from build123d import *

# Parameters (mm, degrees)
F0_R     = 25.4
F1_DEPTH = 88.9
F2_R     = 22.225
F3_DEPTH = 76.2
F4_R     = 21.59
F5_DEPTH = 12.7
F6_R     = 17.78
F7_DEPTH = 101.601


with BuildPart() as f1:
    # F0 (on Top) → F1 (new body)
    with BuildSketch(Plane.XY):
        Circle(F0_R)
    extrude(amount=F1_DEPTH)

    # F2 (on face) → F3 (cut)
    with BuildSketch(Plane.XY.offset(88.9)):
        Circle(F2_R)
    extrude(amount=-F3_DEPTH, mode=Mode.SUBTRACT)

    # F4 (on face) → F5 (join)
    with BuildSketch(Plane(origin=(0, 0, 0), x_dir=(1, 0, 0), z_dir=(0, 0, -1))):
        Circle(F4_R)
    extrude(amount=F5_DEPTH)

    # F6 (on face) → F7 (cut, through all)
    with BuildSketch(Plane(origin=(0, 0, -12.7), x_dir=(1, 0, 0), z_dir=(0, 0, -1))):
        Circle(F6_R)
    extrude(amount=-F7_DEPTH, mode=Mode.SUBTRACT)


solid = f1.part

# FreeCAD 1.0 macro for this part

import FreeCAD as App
import Part
import Sketcher

V = App.Vector
Q = App.Units.Quantity

doc = App.newDocument("Part")
body = doc.addObject("PartDesign::Body", "Body")

sketch1 = body.newObject("Sketcher::SketchObject", "Sketch")
sketch1.AttachmentSupport = (doc.getObject("XY_Plane"), [""])
sketch1.MapMode = "FlatFace"
sketch1.addGeometry(Part.Circle(V(0, 0, 0), V(0, 0, 1), 25), False)
sketch1.addConstraint(Sketcher.Constraint("Coincident", 0, 3, -1, 1))
sketch1.addConstraint(Sketcher.Constraint("Diameter", 0, Q("2 in")))
pad1 = body.newObject("PartDesign::Pad", "Pad")
pad1.Profile = sketch1
pad1.Length = Q("3.5 in")

sketch2 = body.newObject("Sketcher::SketchObject", "Sketch001")
sketch2.AttachmentSupport = (doc.getObject("XY_Plane"), [""])
sketch2.MapMode = "FlatFace"
sketch2.AttachmentOffset = App.Placement(V(0, 0, 3.5 * 25.4), App.Rotation())
sketch2.addGeometry(Part.Circle(V(0, 0, 0), V(0, 0, 1), 22), False)
sketch2.addConstraint(Sketcher.Constraint("Coincident", 0, 3, -1, 1))
sketch2.addConstraint(Sketcher.Constraint("Diameter", 0, Q("1.75 in")))
pocket1 = body.newObject("PartDesign::Pocket", "Pocket")
pocket1.Profile = sketch2
pocket1.Length = Q("3 in")

sketch3 = body.newObject("Sketcher::SketchObject", "Sketch002")
sketch3.AttachmentSupport = (doc.getObject("XY_Plane"), [""])
sketch3.MapMode = "FlatFace"
sketch3.addGeometry(Part.Circle(V(0, 0, 0), V(0, 0, 1), 22), False)
sketch3.addConstraint(Sketcher.Constraint("Coincident", 0, 3, -1, 1))
sketch3.addConstraint(Sketcher.Constraint("Diameter", 0, Q("1.7 in")))
pad2 = body.newObject("PartDesign::Pad", "Pad001")
pad2.Profile = sketch3
pad2.Length = Q("0.5 in")
pad2.Reversed = True

sketch4 = body.newObject("Sketcher::SketchObject", "Sketch003")
sketch4.AttachmentSupport = (doc.getObject("XY_Plane"), [""])
sketch4.MapMode = "FlatFace"
sketch4.AttachmentOffset = App.Placement(V(0, 0, -0.5 * 25.4), App.Rotation())
sketch4.addGeometry(Part.Circle(V(0, 0, 0), V(0, 0, 1), 18), False)
sketch4.addConstraint(Sketcher.Constraint("Coincident", 0, 3, -1, 1))
sketch4.addConstraint(Sketcher.Constraint("Diameter", 0, Q("1.4 in")))
pocket2 = body.newObject("PartDesign::Pocket", "Pocket001")
pocket2.Profile = sketch4
pocket2.Type = "ThroughAll"
pocket2.Reversed = True

doc.recompute()
